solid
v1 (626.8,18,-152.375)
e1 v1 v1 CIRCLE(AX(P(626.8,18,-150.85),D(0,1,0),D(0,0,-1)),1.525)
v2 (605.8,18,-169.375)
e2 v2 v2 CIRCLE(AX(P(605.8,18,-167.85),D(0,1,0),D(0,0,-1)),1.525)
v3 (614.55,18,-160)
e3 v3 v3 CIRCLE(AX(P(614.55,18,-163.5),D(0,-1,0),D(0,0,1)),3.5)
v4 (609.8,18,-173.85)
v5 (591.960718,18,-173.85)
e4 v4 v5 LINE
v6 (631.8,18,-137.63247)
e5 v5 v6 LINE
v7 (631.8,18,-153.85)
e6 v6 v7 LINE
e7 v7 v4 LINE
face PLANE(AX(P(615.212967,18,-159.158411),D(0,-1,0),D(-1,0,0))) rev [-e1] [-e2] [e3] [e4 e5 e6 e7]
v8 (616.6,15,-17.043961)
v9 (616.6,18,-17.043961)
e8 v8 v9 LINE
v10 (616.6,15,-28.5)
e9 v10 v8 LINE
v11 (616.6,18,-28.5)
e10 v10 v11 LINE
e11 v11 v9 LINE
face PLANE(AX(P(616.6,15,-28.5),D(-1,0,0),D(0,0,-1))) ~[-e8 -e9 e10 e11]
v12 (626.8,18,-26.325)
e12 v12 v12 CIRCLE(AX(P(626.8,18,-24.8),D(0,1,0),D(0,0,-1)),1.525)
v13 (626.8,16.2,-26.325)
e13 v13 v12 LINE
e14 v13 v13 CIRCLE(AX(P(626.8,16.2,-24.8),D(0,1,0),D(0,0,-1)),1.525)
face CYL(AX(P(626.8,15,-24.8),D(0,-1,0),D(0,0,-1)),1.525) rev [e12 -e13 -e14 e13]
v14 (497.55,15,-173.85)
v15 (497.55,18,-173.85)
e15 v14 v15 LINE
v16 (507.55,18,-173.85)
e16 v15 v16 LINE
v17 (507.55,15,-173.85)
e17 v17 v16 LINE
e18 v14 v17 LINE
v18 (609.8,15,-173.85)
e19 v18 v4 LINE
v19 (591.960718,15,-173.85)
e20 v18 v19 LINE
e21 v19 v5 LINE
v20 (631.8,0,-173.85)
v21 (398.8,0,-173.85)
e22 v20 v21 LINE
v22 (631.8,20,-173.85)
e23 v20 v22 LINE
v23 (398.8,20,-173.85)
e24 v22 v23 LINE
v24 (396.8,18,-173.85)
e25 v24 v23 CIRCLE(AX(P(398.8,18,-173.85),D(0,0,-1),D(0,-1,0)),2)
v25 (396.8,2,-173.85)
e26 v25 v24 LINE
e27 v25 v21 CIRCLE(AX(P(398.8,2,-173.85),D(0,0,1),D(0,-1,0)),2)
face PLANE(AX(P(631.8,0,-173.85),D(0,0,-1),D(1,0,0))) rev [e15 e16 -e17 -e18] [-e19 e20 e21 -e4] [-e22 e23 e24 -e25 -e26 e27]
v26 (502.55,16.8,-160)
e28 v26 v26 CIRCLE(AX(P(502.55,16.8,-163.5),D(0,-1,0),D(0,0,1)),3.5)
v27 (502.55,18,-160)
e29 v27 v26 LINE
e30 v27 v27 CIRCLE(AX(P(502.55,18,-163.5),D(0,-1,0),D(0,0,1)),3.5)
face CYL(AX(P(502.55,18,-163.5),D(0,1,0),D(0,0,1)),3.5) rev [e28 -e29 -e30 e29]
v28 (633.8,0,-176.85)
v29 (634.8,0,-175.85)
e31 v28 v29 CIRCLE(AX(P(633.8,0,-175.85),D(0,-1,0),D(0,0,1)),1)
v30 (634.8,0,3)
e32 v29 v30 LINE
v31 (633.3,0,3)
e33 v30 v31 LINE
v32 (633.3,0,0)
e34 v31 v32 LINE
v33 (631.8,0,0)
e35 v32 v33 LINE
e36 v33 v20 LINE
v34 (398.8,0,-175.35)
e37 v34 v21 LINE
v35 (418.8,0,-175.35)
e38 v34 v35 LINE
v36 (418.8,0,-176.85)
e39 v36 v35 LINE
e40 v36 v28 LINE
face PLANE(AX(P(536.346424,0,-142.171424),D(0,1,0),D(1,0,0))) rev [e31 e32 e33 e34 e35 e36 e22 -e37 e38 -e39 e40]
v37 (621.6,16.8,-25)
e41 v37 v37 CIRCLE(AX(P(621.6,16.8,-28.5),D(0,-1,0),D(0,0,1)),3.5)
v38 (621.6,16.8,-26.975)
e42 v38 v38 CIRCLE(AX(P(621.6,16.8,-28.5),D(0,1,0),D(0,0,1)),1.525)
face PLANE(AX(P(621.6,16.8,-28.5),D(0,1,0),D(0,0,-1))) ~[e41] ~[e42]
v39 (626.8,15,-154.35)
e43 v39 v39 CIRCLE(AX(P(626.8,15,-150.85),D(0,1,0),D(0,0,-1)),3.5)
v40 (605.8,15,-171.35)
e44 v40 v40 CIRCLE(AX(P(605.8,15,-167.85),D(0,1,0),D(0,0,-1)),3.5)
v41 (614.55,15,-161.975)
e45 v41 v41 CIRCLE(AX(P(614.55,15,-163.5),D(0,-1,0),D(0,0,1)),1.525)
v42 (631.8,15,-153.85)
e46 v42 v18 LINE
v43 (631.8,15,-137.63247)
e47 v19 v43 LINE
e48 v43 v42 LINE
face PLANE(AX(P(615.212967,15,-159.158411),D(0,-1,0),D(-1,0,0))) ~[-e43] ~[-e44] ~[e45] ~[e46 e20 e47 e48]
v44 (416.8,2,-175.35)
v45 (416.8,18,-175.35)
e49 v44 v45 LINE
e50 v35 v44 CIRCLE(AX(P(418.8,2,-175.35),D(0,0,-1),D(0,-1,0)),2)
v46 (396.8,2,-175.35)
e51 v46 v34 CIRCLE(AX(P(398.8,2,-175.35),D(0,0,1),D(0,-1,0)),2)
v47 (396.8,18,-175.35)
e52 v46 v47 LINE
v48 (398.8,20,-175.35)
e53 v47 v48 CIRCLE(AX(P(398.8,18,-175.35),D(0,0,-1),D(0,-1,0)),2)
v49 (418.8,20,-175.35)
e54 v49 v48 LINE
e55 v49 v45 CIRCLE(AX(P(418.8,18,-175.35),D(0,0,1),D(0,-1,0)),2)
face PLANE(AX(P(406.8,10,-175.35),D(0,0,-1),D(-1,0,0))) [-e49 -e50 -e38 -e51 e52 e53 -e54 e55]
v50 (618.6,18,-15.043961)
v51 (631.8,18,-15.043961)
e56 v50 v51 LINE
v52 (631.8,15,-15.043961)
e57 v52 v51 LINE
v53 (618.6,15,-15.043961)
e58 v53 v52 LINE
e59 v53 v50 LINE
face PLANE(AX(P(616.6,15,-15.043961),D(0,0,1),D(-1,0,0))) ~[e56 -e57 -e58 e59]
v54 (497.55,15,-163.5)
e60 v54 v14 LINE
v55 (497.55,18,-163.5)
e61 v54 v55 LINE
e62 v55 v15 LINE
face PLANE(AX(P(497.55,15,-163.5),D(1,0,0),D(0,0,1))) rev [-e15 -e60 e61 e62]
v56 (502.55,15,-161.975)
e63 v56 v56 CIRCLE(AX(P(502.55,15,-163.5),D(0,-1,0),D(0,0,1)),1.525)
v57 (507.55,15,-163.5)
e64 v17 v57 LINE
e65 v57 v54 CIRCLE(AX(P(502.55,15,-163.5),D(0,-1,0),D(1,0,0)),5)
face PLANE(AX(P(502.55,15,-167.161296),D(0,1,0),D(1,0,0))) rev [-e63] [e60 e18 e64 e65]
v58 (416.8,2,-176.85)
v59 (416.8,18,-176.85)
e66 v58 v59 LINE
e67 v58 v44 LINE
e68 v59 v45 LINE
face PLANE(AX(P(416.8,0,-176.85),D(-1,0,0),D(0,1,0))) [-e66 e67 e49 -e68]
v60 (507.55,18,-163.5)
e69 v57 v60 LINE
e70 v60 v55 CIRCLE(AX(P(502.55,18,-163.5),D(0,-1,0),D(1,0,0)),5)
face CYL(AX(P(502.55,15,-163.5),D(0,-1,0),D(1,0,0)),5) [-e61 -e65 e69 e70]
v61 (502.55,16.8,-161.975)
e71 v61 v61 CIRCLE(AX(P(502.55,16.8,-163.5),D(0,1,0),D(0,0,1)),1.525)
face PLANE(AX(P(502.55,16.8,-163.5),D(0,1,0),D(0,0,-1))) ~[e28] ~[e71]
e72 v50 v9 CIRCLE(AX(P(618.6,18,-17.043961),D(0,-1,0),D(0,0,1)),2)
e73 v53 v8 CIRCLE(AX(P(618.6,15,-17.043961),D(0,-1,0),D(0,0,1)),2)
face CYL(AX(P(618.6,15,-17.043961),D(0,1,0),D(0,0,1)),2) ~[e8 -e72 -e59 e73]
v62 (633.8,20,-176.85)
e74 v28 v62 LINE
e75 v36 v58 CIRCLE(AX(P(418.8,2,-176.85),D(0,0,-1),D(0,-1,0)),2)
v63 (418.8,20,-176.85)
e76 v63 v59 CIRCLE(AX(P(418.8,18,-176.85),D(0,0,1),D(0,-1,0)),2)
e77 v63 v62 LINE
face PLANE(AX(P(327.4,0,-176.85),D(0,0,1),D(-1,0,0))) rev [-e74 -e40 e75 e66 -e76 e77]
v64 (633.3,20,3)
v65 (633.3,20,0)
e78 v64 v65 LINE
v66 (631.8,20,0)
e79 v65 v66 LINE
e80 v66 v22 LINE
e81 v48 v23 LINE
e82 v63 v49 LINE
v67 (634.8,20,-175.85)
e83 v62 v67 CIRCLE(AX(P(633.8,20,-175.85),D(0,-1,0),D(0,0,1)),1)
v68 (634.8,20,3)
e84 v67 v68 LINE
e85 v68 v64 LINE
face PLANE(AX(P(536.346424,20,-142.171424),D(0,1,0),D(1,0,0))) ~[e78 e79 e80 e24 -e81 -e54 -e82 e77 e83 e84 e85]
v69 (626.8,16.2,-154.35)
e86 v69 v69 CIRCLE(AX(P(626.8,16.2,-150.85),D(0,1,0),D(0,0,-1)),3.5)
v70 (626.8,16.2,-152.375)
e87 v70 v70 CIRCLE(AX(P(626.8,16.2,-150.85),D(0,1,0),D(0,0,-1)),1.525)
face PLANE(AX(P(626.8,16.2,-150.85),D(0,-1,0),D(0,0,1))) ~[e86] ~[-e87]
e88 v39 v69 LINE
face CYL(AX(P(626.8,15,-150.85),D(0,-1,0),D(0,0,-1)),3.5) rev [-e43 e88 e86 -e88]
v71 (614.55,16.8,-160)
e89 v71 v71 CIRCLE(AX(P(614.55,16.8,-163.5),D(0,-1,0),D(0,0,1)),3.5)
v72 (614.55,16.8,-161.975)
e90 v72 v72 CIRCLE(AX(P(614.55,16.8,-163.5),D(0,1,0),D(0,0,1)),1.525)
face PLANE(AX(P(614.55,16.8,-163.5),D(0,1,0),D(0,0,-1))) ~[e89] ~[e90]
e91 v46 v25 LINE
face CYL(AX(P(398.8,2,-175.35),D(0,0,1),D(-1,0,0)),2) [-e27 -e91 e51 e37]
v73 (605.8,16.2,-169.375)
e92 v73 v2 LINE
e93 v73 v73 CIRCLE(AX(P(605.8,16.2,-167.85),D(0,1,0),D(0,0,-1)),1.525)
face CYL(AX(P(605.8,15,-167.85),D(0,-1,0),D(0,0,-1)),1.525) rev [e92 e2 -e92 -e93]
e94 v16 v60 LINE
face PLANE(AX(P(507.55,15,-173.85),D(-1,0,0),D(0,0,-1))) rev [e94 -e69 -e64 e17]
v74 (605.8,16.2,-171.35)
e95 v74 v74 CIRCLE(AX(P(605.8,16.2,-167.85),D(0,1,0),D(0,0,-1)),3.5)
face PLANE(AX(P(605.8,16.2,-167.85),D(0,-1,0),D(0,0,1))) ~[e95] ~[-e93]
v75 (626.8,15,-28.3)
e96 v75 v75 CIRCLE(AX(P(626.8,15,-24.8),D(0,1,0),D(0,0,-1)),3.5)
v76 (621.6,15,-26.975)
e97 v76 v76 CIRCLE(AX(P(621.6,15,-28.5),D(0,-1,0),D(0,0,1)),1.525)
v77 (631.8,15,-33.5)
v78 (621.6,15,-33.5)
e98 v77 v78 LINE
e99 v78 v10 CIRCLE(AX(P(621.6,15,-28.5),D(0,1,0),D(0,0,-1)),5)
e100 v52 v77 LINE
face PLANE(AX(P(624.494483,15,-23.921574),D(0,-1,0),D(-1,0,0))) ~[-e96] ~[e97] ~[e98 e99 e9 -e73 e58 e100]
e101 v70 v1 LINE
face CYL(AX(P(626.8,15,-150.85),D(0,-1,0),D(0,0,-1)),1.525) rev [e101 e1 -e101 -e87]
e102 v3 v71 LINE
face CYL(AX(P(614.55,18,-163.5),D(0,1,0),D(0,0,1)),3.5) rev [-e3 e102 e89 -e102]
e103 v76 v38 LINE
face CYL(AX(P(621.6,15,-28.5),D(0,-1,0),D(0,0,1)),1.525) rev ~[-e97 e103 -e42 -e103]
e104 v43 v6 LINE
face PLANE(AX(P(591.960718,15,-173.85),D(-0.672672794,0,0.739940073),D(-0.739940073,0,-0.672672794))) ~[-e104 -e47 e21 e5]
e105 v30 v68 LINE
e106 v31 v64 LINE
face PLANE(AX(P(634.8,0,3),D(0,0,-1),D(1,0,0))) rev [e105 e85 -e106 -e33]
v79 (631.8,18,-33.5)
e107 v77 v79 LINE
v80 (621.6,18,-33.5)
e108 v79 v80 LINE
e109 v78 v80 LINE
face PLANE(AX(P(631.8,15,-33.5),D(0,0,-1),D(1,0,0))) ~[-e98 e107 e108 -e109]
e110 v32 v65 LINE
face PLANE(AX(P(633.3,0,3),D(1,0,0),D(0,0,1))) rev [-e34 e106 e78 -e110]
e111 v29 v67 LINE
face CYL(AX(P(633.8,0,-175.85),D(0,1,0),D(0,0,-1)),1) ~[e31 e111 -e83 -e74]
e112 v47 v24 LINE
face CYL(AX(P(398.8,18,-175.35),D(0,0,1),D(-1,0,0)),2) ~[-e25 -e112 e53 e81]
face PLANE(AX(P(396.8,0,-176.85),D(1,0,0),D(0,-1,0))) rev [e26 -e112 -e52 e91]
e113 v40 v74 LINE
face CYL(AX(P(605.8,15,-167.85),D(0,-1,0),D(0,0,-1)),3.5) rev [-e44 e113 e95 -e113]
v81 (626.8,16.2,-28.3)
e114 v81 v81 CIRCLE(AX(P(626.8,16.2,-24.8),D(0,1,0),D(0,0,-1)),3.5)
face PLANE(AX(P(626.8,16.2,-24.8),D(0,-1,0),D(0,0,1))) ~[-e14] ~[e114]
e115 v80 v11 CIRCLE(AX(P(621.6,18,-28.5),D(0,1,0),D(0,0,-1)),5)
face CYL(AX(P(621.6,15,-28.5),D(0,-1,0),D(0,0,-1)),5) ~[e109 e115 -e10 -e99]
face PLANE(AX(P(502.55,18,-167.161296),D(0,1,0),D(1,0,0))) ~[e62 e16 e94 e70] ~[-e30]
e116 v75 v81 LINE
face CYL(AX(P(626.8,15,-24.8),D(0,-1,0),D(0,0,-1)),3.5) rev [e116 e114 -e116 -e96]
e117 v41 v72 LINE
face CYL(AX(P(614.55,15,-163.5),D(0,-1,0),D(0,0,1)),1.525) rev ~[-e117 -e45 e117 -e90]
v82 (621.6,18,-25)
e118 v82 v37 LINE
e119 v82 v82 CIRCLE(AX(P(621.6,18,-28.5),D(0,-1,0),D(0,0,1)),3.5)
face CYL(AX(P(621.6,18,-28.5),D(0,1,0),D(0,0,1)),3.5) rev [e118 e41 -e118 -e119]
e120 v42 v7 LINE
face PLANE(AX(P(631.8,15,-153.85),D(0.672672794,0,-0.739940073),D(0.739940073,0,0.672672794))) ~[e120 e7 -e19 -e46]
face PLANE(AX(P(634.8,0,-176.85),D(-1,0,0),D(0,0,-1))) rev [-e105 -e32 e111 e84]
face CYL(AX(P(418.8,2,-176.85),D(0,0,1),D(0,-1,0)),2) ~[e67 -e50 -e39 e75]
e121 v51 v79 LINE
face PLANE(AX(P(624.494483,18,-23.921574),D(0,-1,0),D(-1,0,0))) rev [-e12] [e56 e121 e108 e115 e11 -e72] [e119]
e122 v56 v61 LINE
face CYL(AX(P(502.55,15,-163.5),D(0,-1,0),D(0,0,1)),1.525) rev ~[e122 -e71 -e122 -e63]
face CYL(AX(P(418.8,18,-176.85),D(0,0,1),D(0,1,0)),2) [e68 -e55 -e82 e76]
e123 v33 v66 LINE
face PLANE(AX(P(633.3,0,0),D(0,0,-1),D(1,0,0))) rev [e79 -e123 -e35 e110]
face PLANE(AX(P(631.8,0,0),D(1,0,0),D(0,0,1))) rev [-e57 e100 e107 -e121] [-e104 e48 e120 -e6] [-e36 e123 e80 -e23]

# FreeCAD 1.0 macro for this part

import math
import FreeCAD as App
import Part
import Sketcher


def edges_at(feature, points):
    """Names of the edges that pass closest to the given points."""
    edges = feature.Shape.Edges
    near = lambda p: min(range(len(edges)), key=lambda i: edges[i].distToShape(Part.Vertex(*p))[0])
    return sorted({f"Edge{near(p) + 1}" for p in points})

doc = App.newDocument("Part")
params = doc.addObject("Spreadsheet::Sheet", "Params")
for row, (alias, value) in enumerate([
    ("sketch1_height", "3 mm"),
    ("sketch1_width", "1.5 mm"),
    ("sketch1_width2", "304.4 mm"),
    ("sketch1_height2", "173.85 mm"),
    ("pad1_length", "20 mm"),
    ("sketch2_radius", "5 mm"),
    ("sketch2_diameter", "3.05 mm"),
    ("sketch2_width", "10.2 mm"),
    ("sketch2_height", "10.35 mm"),
    ("pad2_length", "3 mm"),
    ("sketch3_width", "31 mm"),
    ("sketch3_height", "9.5 mm"),
    ("sketch4_diameter", "7 mm"),
    ("pocket2_length", "1.2 mm"),
    ("sketch5_diameter", "3.05 mm"),
    ("sketch6_diameter", "3.05 mm"),
    ("sketch7_diameter", "3.05 mm"),
    ("fillet_radius", "1 mm"),
    ("fillet2_radius", "1 mm"),
    ("sketch8_diameter", "7 mm"),
    ("pocket6_length", "1.2 mm"),
    ("sketch9_height", "20 mm"),
    ("sketch9_width", "69.4 mm"),
    ("pocket7_length", "3 mm"),
    ("sketch10_width", "20 mm"),
    ("pocket8_length", "1.5 mm"),
    ("fillet3_radius", "2 mm"),
    ("fillet4_radius", "2 mm"),
    ("fillet5_radius", "2 mm"),
], start=1):
    params.set(f"A{row}", alias)
    params.set(f"B{row}", "=" + value)
    params.setAlias(f"B{row}", alias)

body = doc.addObject("PartDesign::Body", "Body")

# Sketch on XZ plane
sketch1 = body.newObject("Sketcher::SketchObject", "Sketch")
sketch1.AttachmentSupport = (doc.getObject("XZ_Plane"), [""])
sketch1.MapMode = "FlatFace"
sketch1.addGeometry(Part.LineSegment(App.Vector(1.5, 0, 0), App.Vector(3, 0, 0)), False)
sketch1.addGeometry(Part.LineSegment(App.Vector(3, 0, 0), App.Vector(3, -173.8, 0)), False)
sketch1.addGeometry(Part.LineSegment(App.Vector(3, -173.8, 0), App.Vector(307.4, -173.8, 0)), False)
sketch1.addGeometry(Part.LineSegment(App.Vector(307.4, -173.8, 0), App.Vector(307.4, -176.8, 0)), False)
sketch1.addGeometry(Part.LineSegment(App.Vector(307.4, -176.8, 0), App.Vector(0, -176.8, 0)), False)
sketch1.addGeometry(Part.LineSegment(App.Vector(0, -176.8, 0), App.Vector(0, 3, 0)), False)
sketch1.addGeometry(Part.LineSegment(App.Vector(0, 3, 0), App.Vector(1.5, 3, 0)), False)
sketch1.addGeometry(Part.LineSegment(App.Vector(1.5, 3, 0), App.Vector(1.5, 0, 0)), False)
sketch1.addConstraint(Sketcher.Constraint("Coincident", 0, 2, 1, 1))
sketch1.addConstraint(Sketcher.Constraint("Coincident", 1, 2, 2, 1))
sketch1.addConstraint(Sketcher.Constraint("Coincident", 2, 2, 3, 1))
sketch1.addConstraint(Sketcher.Constraint("Coincident", 3, 2, 4, 1))
sketch1.addConstraint(Sketcher.Constraint("Coincident", 4, 2, 5, 1))
sketch1.addConstraint(Sketcher.Constraint("Coincident", 5, 2, 6, 1))
sketch1.addConstraint(Sketcher.Constraint("Coincident", 6, 2, 7, 1))
sketch1.addConstraint(Sketcher.Constraint("Coincident", 7, 2, 0, 1))
sketch1.addConstraint(Sketcher.Constraint("Horizontal", 0))
sketch1.addConstraint(Sketcher.Constraint("Vertical", 1))
sketch1.addConstraint(Sketcher.Constraint("Horizontal", 2))
sketch1.addConstraint(Sketcher.Constraint("Vertical", 3))
sketch1.addConstraint(Sketcher.Constraint("Horizontal", 4))
sketch1.addConstraint(Sketcher.Constraint("Vertical", 5))
sketch1.addConstraint(Sketcher.Constraint("Horizontal", 6))
sketch1.addConstraint(Sketcher.Constraint("Vertical", 7))
sketch1.addConstraint(Sketcher.Constraint("PointOnObject", 0, 2, -1))
sketch1.addConstraint(Sketcher.Constraint("PointOnObject", 4, 2, -2))
sketch1.addConstraint(Sketcher.Constraint("Equal", 0, 6))
sketch1.addConstraint(Sketcher.Constraint("Equal", 3, 7))
sketch1.addConstraint(Sketcher.Constraint("DistanceY", 3, 2, 3, 1, 3.0))
sketch1.addConstraint(Sketcher.Constraint("DistanceX", 0, 1, 0, 2, 1.5))
sketch1.addConstraint(Sketcher.Constraint("DistanceX", 2, 1, 2, 2, 304.4))
sketch1.addConstraint(Sketcher.Constraint("DistanceY", 1, 2, 1, 1, 173.85))
sketch1.setExpression("Constraints[20]", "Params.sketch1_height")
sketch1.setExpression("Constraints[21]", "Params.sketch1_width")
sketch1.setExpression("Constraints[22]", "Params.sketch1_width2")
sketch1.setExpression("Constraints[23]", "Params.sketch1_height2")
pad1 = body.newObject("PartDesign::Pad", "Pad")
pad1.Profile = sketch1
pad1.setExpression("Length", "Params.pad1_length")
pad1.Reversed = True

# Sketch on XZ plane
sketch2 = body.newObject("Sketcher::SketchObject", "Sketch001")
sketch2.AttachmentSupport = (doc.getObject("XZ_Plane"), [""])
sketch2.MapMode = "FlatFace"
sketch2.AttachmentOffset = App.Placement(App.Vector(0, 0, -15), App.Rotation())
sketch2.addGeometry(Part.LineSegment(App.Vector(25, -173.8, 0), App.Vector(3, -153.8, 0)), False)
sketch2.addGeometry(Part.LineSegment(App.Vector(3, -153.8, 0), App.Vector(3, -137.6, 0)), False)
sketch2.addGeometry(Part.LineSegment(App.Vector(3, -137.6, 0), App.Vector(42.8, -173.8, 0)), False)
sketch2.addGeometry(Part.LineSegment(App.Vector(42.8, -173.8, 0), App.Vector(25, -173.8, 0)), False)
sketch2.addGeometry(Part.Circle(App.Vector(20.2, -163.5, 0), App.Vector(0, 0, 1), 1.5), False)
sketch2.addGeometry(Part.LineSegment(App.Vector(137.2, -163.5, 0), App.Vector(137.2, -173.8, 0)), False)
sketch2.addGeometry(Part.LineSegment(App.Vector(137.2, -173.8, 0), App.Vector(127.2, -173.8, 0)), False)
sketch2.addGeometry(Part.LineSegment(App.Vector(127.2, -173.8, 0), App.Vector(127.2, -163.5, 0)), False)
sketch2.addGeometry(Part.ArcOfCircle(Part.Circle(App.Vector(132.2, -163.5, 0), App.Vector(0, 0, 1), 5), math.radians(0), math.radians(180)), False)
sketch2.addGeometry(Part.Circle(App.Vector(132.2, -163.5, 0), App.Vector(0, 0, 1), 1.5), False)
sketch2.addGeometry(Part.LineSegment(App.Vector(13.2, -33.5, 0), App.Vector(3, -33.5, 0)), False)
sketch2.addGeometry(Part.LineSegment(App.Vector(3, -33.5, 0), App.Vector(3, -15, 0)), False)
sketch2.addGeometry(Part.LineSegment(App.Vector(3, -15, 0), App.Vector(18.2, -15, 0)), False)
sketch2.addGeometry(Part.LineSegment(App.Vector(18.2, -15, 0), App.Vector(18.2, -28.5, 0)), False)
sketch2.addGeometry(Part.ArcOfCircle(Part.Circle(App.Vector(13.2, -28.5, 0), App.Vector(0, 0, 1), 5), math.radians(-90), math.radians(0)), False)
sketch2.addGeometry(Part.Circle(App.Vector(13.2, -28.5, 0), App.Vector(0, 0, 1), 1.5), False)
sketch2.addConstraint(Sketcher.Constraint("Coincident", 0, 2, 1, 1))
sketch2.addConstraint(Sketcher.Constraint("Coincident", 1, 2, 2, 1))
sketch2.addConstraint(Sketcher.Constraint("Coincident", 2, 2, 3, 1))
sketch2.addConstraint(Sketcher.Constraint("Coincident", 3, 2, 0, 1))
sketch2.addConstraint(Sketcher.Constraint("Coincident", 5, 2, 6, 1))
sketch2.addConstraint(Sketcher.Constraint("Coincident", 6, 2, 7, 1))
sketch2.addConstraint(Sketcher.Constraint("Tangent", 7, 2, 8, 2))
sketch2.addConstraint(Sketcher.Constraint("Tangent", 8, 1, 5, 1))
sketch2.addConstraint(Sketcher.Constraint("Coincident", 10, 2, 11, 1))
sketch2.addConstraint(Sketcher.Constraint("Coincident", 11, 2, 12, 1))
sketch2.addConstraint(Sketcher.Constraint("Coincident", 12, 2, 13, 1))
sketch2.addConstraint(Sketcher.Constraint("Tangent", 13, 2, 14, 2))
sketch2.addConstraint(Sketcher.Constraint("Tangent", 14, 1, 10, 1))
sketch2.addConstraint(Sketcher.Constraint("Vertical", 1))
sketch2.addConstraint(Sketcher.Constraint("Horizontal", 3))
sketch2.addConstraint(Sketcher.Constraint("Vertical", 5))
sketch2.addConstraint(Sketcher.Constraint("Horizontal", 6))
sketch2.addConstraint(Sketcher.Constraint("Vertical", 7))
sketch2.addConstraint(Sketcher.Constraint("Horizontal", 10))
sketch2.addConstraint(Sketcher.Constraint("Vertical", 11))
sketch2.addConstraint(Sketcher.Constraint("Horizontal", 12))
sketch2.addConstraint(Sketcher.Constraint("Vertical", 13))
sketch2.addConstraint(Sketcher.Constraint("Coincident", 9, 3, 8, 3))
sketch2.addConstraint(Sketcher.Constraint("Coincident", 15, 3, 14, 3))
sketch2.addConstraint(Sketcher.Constraint("Equal", 4, 9))
sketch2.addConstraint(Sketcher.Constraint("Equal", 8, 14))
sketch2.addConstraint(Sketcher.Constraint("Equal", 9, 15))
sketch2.addConstraint(Sketcher.Constraint("Parallel", 0, 2))
sketch2.addConstraint(Sketcher.Constraint("Horizontal", 4, 3, 8, 3))
sketch2.addConstraint(Sketcher.Constraint("Horizontal", 3, 2, 5, 2))
sketch2.addConstraint(Sketcher.Constraint("Vertical", 1, 2, 10, 2))
sketch2.addConstraint(Sketcher.Constraint("Radius", 8, 5.0))
sketch2.addConstraint(Sketcher.Constraint("Diameter", 4, 3.05))
sketch2.addConstraint(Sketcher.Constraint("DistanceX", 10, 2, 10, 1, 10.2))
sketch2.addConstraint(Sketcher.Constraint("DistanceX", -1, 1, 0, 2, 3.0))
sketch2.addConstraint(Sketcher.Constraint("DistanceX", -1, 1, 3, 2, 25.0))
sketch2.addConstraint(Sketcher.Constraint("DistanceX", 4, 3, 8, 3, 112.0))
sketch2.addConstraint(Sketcher.Constraint("DistanceY", 4, 3, 14, 3, 135.0))
sketch2.addConstraint(Sketcher.Constraint("DistanceY", 2, 2, 0, 2, 20.0))
sketch2.addConstraint(Sketcher.Constraint("DistanceY", 5, 2, 5, 1, 10.35))
sketch2.addConstraint(Sketcher.Constraint("DistanceY", 4, 3, -1, 1, 163.5))
sketch2.addConstraint(Sketcher.Constraint("DistanceX", -1, 1, 4, 3, 20.25))
sketch2.addConstraint(Sketcher.Constraint("DistanceY", 1, 1, 1, 2, 16.21753))
sketch2.addConstraint(Sketcher.Constraint("DistanceY", 11, 1, 11, 2, 18.456039))
sketch2.setExpression("Constraints[31]", "Params.sketch2_radius")
sketch2.setExpression("Constraints[32]", "Params.sketch2_diameter")
sketch2.setExpression("Constraints[33]", "Params.sketch2_width")
sketch2.setExpression("Constraints[39]", "Params.sketch2_height")
pad2 = body.newObject("PartDesign::Pad", "Pad001")
pad2.Profile = sketch2
pad2.setExpression("Length", "Params.pad2_length")
pad2.Reversed = True

# Sketch on XY plane
sketch3 = body.newObject("Sketcher::SketchObject", "Sketch002")
sketch3.AttachmentSupport = (doc.getObject("XY_Plane"), [""])
sketch3.MapMode = "FlatFace"
sketch3.AttachmentOffset = App.Placement(App.Vector(0, 0, -176.85), App.Rotation())
sketch3.addGeometry(Part.LineSegment(App.Vector(307, 20, 0), App.Vector(307, 10, 0)), False)
sketch3.addGeometry(Part.LineSegment(App.Vector(307, 10, 0), App.Vector(276, 10, 0)), False)
sketch3.addGeometry(Part.LineSegment(App.Vector(276, 10, 0), App.Vector(276, 20, 0)), False)
sketch3.addGeometry(Part.LineSegment(App.Vector(276, 20, 0), App.Vector(307, 20, 0)), False)
sketch3.addConstraint(Sketcher.Constraint("Coincident", 0, 2, 1, 1))
sketch3.addConstraint(Sketcher.Constraint("Coincident", 1, 2, 2, 1))
sketch3.addConstraint(Sketcher.Constraint("Coincident", 2, 2, 3, 1))
sketch3.addConstraint(Sketcher.Constraint("Coincident", 3, 2, 0, 1))
sketch3.addConstraint(Sketcher.Constraint("Vertical", 0))
sketch3.addConstraint(Sketcher.Constraint("Horizontal", 1))
sketch3.addConstraint(Sketcher.Constraint("Vertical", 2))
sketch3.addConstraint(Sketcher.Constraint("Horizontal", 3))
sketch3.addConstraint(Sketcher.Constraint("DistanceX", 1, 2, 1, 1, 31.0))
sketch3.addConstraint(Sketcher.Constraint("DistanceY", 0, 2, 0, 1, 9.5))
sketch3.addConstraint(Sketcher.Constraint("DistanceY", -1, 1, 2, 2, 20.0))
sketch3.addConstraint(Sketcher.Constraint("DistanceX", -1, 1, 0, 2, 307.4))
sketch3.setExpression("Constraints[8]", "Params.sketch3_width")
sketch3.setExpression("Constraints[9]", "Params.sketch3_height")
pocket1 = body.newObject("PartDesign::Pocket", "Pocket")
pocket1.Profile = sketch3
pocket1.Type = "UpToFirst"
pocket1.Reversed = True

# Sketch on XZ plane
sketch4 = body.newObject("Sketcher::SketchObject", "Sketch003")
sketch4.AttachmentSupport = (doc.getObject("XZ_Plane"), [""])
sketch4.MapMode = "FlatFace"
sketch4.AttachmentOffset = App.Placement(App.Vector(0, 0, -18), App.Rotation())
sketch4.addGeometry(Part.Circle(App.Vector(13.2, -28.5, 0), App.Vector(0, 0, 1), 3.5), False)
sketch4.addGeometry(Part.Circle(App.Vector(20.2, -163.5, 0), App.Vector(0, 0, 1), 3.5), False)
sketch4.addGeometry(Part.Circle(App.Vector(132.2, -163.5, 0), App.Vector(0, 0, 1), 3.5), False)
sketch4.addConstraint(Sketcher.Constraint("Equal", 0, 1))
sketch4.addConstraint(Sketcher.Constraint("Equal", 1, 2))
sketch4.addConstraint(Sketcher.Constraint("Horizontal", 1, 3, 2, 3))
sketch4.addConstraint(Sketcher.Constraint("Diameter", 0, 7.0))
sketch4.addConstraint(Sketcher.Constraint("DistanceY", 1, 3, 0, 3, 135.0))
sketch4.addConstraint(Sketcher.Constraint("DistanceX", 1, 3, 2, 3, 112.0))
sketch4.addConstraint(Sketcher.Constraint("DistanceX", -1, 1, 0, 3, 13.2))
sketch4.addConstraint(Sketcher.Constraint("DistanceY", 0, 3, -1, 1, 28.5))
sketch4.addConstraint(Sketcher.Constraint("DistanceX", -1, 1, 1, 3, 20.25))
sketch4.setExpression("Constraints[3]", "Params.sketch4_diameter")
pocket2 = body.newObject("PartDesign::Pocket", "Pocket001")
pocket2.Profile = sketch4
pocket2.setExpression("Length", "Params.pocket2_length")
pocket2.Reversed = True

# Sketch on XZ plane
sketch5 = body.newObject("Sketcher::SketchObject", "Sketch004")
sketch5.AttachmentSupport = (doc.getObject("XZ_Plane"), [""])
sketch5.MapMode = "FlatFace"
sketch5.AttachmentOffset = App.Placement(App.Vector(0, 0, -15), App.Rotation())
sketch5.addGeometry(Part.Circle(App.Vector(29, -167.8, 0), App.Vector(0, 0, 1), 1.5), False)
sketch5.addConstraint(Sketcher.Constraint("Diameter", 0, 3.05))
sketch5.addConstraint(Sketcher.Constraint("DistanceX", -1, 1, 0, 3, 29.0))
sketch5.addConstraint(Sketcher.Constraint("DistanceY", 0, 3, -1, 1, 167.85))
sketch5.setExpression("Constraints[0]", "Params.sketch5_diameter")
pocket3 = body.newObject("PartDesign::Pocket", "Pocket002")
pocket3.Profile = sketch5
pocket3.Type = "UpToFirst"

# Sketch on XZ plane
sketch6 = body.newObject("Sketcher::SketchObject", "Sketch005")
sketch6.AttachmentSupport = (doc.getObject("XZ_Plane"), [""])
sketch6.MapMode = "FlatFace"
sketch6.AttachmentOffset = App.Placement(App.Vector(0, 0, -15), App.Rotation())
sketch6.addGeometry(Part.Circle(App.Vector(8, -150.8, 0), App.Vector(0, 0, 1), 1.5), False)
sketch6.addConstraint(Sketcher.Constraint("Diameter", 0, 3.05))
sketch6.addConstraint(Sketcher.Constraint("DistanceX", -1, 1, 0, 3, 8.0))
sketch6.addConstraint(Sketcher.Constraint("DistanceY", 0, 3, -1, 1, 150.85))
sketch6.setExpression("Constraints[0]", "Params.sketch6_diameter")
pocket4 = body.newObject("PartDesign::Pocket", "Pocket003")
pocket4.Profile = sketch6
pocket4.Type = "UpToFirst"

# Sketch on XZ plane
sketch7 = body.newObject("Sketcher::SketchObject", "Sketch006")
sketch7.AttachmentSupport = (doc.getObject("XZ_Plane"), [""])
sketch7.MapMode = "FlatFace"
sketch7.AttachmentOffset = App.Placement(App.Vector(0, 0, -15), App.Rotation())
sketch7.addGeometry(Part.Circle(App.Vector(8, -24.8, 0), App.Vector(0, 0, 1), 1.5), False)
sketch7.addConstraint(Sketcher.Constraint("Diameter", 0, 3.05))
sketch7.addConstraint(Sketcher.Constraint("DistanceX", -1, 1, 0, 3, 8.0))
sketch7.addConstraint(Sketcher.Constraint("DistanceY", 0, 3, -1, 1, 24.8))
sketch7.setExpression("Constraints[0]", "Params.sketch7_diameter")
pocket5 = body.newObject("PartDesign::Pocket", "Pocket004")
pocket5.Profile = sketch7
pocket5.Type = "UpToFirst"
doc.recompute()

fillet = body.newObject("PartDesign::Fillet", "Fillet")
fillet.Base = (pocket5, edges_at(pocket5, [(0, 10, -176.85)]))
fillet.setExpression("Radius", "Params.fillet_radius")
doc.recompute()

fillet2 = body.newObject("PartDesign::Fillet", "Fillet001")
fillet2.Base = (fillet, edges_at(fillet, [(276.4, 10.5, -175.35)]))
fillet2.setExpression("Radius", "Params.fillet2_radius")

# Sketch on XZ plane
sketch8 = body.newObject("Sketcher::SketchObject", "Sketch007")
sketch8.AttachmentSupport = (doc.getObject("XZ_Plane"), [""])
sketch8.MapMode = "FlatFace"
sketch8.AttachmentOffset = App.Placement(App.Vector(0, 0, -15), App.Rotation())
sketch8.addGeometry(Part.Circle(App.Vector(8, -24.8, 0), App.Vector(0, 0, 1), 3.5), False)
sketch8.addGeometry(Part.Circle(App.Vector(8, -150.8, 0), App.Vector(0, 0, 1), 3.5), False)
sketch8.addGeometry(Part.Circle(App.Vector(29, -167.8, 0), App.Vector(0, 0, 1), 3.5), False)
sketch8.addConstraint(Sketcher.Constraint("Equal", 0, 1))
sketch8.addConstraint(Sketcher.Constraint("Equal", 1, 2))
sketch8.addConstraint(Sketcher.Constraint("Vertical", 0, 3, 1, 3))
sketch8.addConstraint(Sketcher.Constraint("Diameter", 0, 7.0))
sketch8.addConstraint(Sketcher.Constraint("DistanceX", -1, 1, 0, 3, 8.0))
sketch8.addConstraint(Sketcher.Constraint("DistanceX", -1, 1, 2, 3, 29.0))
sketch8.addConstraint(Sketcher.Constraint("DistanceY", 2, 3, 1, 3, 17.0))
sketch8.addConstraint(Sketcher.Constraint("DistanceY", 0, 3, -1, 1, 24.8))
sketch8.addConstraint(Sketcher.Constraint("DistanceY", 1, 3, -1, 1, 150.85))
sketch8.setExpression("Constraints[3]", "Params.sketch8_diameter")
pocket6 = body.newObject("PartDesign::Pocket", "Pocket005")
pocket6.Profile = sketch8
pocket6.setExpression("Length", "Params.pocket6_length")

# Sketch on XY plane
sketch9 = body.newObject("Sketcher::SketchObject", "Sketch008")
sketch9.AttachmentSupport = (doc.getObject("XY_Plane"), [""])
sketch9.MapMode = "FlatFace"
sketch9.AttachmentOffset = App.Placement(App.Vector(0, 0, -176.85), App.Rotation())
sketch9.addGeometry(Part.LineSegment(App.Vector(307, 20, 0), App.Vector(307, 0, 0)), False)
sketch9.addGeometry(Part.LineSegment(App.Vector(307, 0, 0), App.Vector(238, 0, 0)), False)
sketch9.addGeometry(Part.LineSegment(App.Vector(238, 0, 0), App.Vector(238, 20, 0)), False)
sketch9.addGeometry(Part.LineSegment(App.Vector(238, 20, 0), App.Vector(307, 20, 0)), False)
sketch9.addConstraint(Sketcher.Constraint("Coincident", 0, 2, 1, 1))
sketch9.addConstraint(Sketcher.Constraint("Coincident", 1, 2, 2, 1))
sketch9.addConstraint(Sketcher.Constraint("Coincident", 2, 2, 3, 1))
sketch9.addConstraint(Sketcher.Constraint("Coincident", 3, 2, 0, 1))
sketch9.addConstraint(Sketcher.Constraint("Vertical", 0))
sketch9.addConstraint(Sketcher.Constraint("Horizontal", 1))
sketch9.addConstraint(Sketcher.Constraint("Vertical", 2))
sketch9.addConstraint(Sketcher.Constraint("Horizontal", 3))
sketch9.addConstraint(Sketcher.Constraint("PointOnObject", 0, 2, -1))
sketch9.addConstraint(Sketcher.Constraint("DistanceY", 0, 2, 0, 1, 20.0))
sketch9.addConstraint(Sketcher.Constraint("DistanceX", 1, 2, 1, 1, 69.4))
sketch9.addConstraint(Sketcher.Constraint("DistanceX", -1, 1, 1, 2, 238.0))
sketch9.setExpression("Constraints[9]", "Params.sketch9_height")
sketch9.setExpression("Constraints[10]", "Params.sketch9_width")
pocket7 = body.newObject("PartDesign::Pocket", "Pocket006")
pocket7.Profile = sketch9
pocket7.setExpression("Length", "Params.pocket7_length")
pocket7.Reversed = True
body2 = doc.addObject("PartDesign::Body", "Body001")
doc.recompute()

mirroring = doc.addObject("Part::Mirroring", "Mirroring")
mirroring.Source = body
mirroring.Base = App.Vector(317.4, 0, 0)
mirroring.Normal = App.Vector(1, 0, 0)
body2.BaseFeature = mirroring
doc.recompute()

# Sketch on XY plane
sketch10 = body2.newObject("Sketcher::SketchObject", "Sketch009")
sketch10.AttachmentSupport = (doc.getObject("XY_Plane001"), [""])
sketch10.MapMode = "FlatFace"
sketch10.AttachmentOffset = App.Placement(App.Vector(0, 0, -176.85), App.Rotation())
sketch10.addGeometry(Part.LineSegment(App.Vector(417, 20, 0), App.Vector(417, 0, 0)), False)
sketch10.addGeometry(Part.LineSegment(App.Vector(417, 0, 0), App.Vector(397, 0, 0)), False)
sketch10.addGeometry(Part.LineSegment(App.Vector(397, 0, 0), App.Vector(397, 20, 0)), False)
sketch10.addGeometry(Part.LineSegment(App.Vector(397, 20, 0), App.Vector(417, 20, 0)), False)
sketch10.addConstraint(Sketcher.Constraint("Coincident", 0, 2, 1, 1))
sketch10.addConstraint(Sketcher.Constraint("Coincident", 1, 2, 2, 1))
sketch10.addConstraint(Sketcher.Constraint("Coincident", 2, 2, 3, 1))
sketch10.addConstraint(Sketcher.Constraint("Coincident", 3, 2, 0, 1))
sketch10.addConstraint(Sketcher.Constraint("Vertical", 0))
sketch10.addConstraint(Sketcher.Constraint("Horizontal", 1))
sketch10.addConstraint(Sketcher.Constraint("Vertical", 2))
sketch10.addConstraint(Sketcher.Constraint("Horizontal", 3))
sketch10.addConstraint(Sketcher.Constraint("PointOnObject", 0, 2, -1))
sketch10.addConstraint(Sketcher.Constraint("Equal", 3, 0))
sketch10.addConstraint(Sketcher.Constraint("DistanceX", 1, 2, 1, 1, 20.0))
sketch10.addConstraint(Sketcher.Constraint("DistanceX", -1, 1, 0, 2, 416.8))
sketch10.setExpression("Constraints[10]", "Params.sketch10_width")
pocket8 = body2.newObject("PartDesign::Pocket", "Pocket007")
pocket8.Profile = sketch10
pocket8.setExpression("Length", "Params.pocket8_length")
pocket8.Reversed = True
doc.recompute()

fillet3 = body2.newObject("PartDesign::Fillet", "Fillet002")
fillet3.Base = (pocket8, edges_at(pocket8, [(416.8, 0, -176.1), (416.8, 20, -176.1)]))
fillet3.setExpression("Radius", "Params.fillet3_radius")
doc.recompute()

fillet4 = body2.newObject("PartDesign::Fillet", "Fillet003")
fillet4.Base = (fillet3, edges_at(fillet3, [(396.8, 20, -174.6), (396.8, 0, -174.6)]))
fillet4.setExpression("Radius", "Params.fillet4_radius")
doc.recompute()

fillet5 = body2.newObject("PartDesign::Fillet", "Fillet004")
fillet5.Base = (fillet4, edges_at(fillet4, [(616.6, 16.5, -15.044)]))
fillet5.setExpression("Radius", "Params.fillet5_radius")
body.Visibility = False
mirroring.Visibility = False

doc.recompute()
